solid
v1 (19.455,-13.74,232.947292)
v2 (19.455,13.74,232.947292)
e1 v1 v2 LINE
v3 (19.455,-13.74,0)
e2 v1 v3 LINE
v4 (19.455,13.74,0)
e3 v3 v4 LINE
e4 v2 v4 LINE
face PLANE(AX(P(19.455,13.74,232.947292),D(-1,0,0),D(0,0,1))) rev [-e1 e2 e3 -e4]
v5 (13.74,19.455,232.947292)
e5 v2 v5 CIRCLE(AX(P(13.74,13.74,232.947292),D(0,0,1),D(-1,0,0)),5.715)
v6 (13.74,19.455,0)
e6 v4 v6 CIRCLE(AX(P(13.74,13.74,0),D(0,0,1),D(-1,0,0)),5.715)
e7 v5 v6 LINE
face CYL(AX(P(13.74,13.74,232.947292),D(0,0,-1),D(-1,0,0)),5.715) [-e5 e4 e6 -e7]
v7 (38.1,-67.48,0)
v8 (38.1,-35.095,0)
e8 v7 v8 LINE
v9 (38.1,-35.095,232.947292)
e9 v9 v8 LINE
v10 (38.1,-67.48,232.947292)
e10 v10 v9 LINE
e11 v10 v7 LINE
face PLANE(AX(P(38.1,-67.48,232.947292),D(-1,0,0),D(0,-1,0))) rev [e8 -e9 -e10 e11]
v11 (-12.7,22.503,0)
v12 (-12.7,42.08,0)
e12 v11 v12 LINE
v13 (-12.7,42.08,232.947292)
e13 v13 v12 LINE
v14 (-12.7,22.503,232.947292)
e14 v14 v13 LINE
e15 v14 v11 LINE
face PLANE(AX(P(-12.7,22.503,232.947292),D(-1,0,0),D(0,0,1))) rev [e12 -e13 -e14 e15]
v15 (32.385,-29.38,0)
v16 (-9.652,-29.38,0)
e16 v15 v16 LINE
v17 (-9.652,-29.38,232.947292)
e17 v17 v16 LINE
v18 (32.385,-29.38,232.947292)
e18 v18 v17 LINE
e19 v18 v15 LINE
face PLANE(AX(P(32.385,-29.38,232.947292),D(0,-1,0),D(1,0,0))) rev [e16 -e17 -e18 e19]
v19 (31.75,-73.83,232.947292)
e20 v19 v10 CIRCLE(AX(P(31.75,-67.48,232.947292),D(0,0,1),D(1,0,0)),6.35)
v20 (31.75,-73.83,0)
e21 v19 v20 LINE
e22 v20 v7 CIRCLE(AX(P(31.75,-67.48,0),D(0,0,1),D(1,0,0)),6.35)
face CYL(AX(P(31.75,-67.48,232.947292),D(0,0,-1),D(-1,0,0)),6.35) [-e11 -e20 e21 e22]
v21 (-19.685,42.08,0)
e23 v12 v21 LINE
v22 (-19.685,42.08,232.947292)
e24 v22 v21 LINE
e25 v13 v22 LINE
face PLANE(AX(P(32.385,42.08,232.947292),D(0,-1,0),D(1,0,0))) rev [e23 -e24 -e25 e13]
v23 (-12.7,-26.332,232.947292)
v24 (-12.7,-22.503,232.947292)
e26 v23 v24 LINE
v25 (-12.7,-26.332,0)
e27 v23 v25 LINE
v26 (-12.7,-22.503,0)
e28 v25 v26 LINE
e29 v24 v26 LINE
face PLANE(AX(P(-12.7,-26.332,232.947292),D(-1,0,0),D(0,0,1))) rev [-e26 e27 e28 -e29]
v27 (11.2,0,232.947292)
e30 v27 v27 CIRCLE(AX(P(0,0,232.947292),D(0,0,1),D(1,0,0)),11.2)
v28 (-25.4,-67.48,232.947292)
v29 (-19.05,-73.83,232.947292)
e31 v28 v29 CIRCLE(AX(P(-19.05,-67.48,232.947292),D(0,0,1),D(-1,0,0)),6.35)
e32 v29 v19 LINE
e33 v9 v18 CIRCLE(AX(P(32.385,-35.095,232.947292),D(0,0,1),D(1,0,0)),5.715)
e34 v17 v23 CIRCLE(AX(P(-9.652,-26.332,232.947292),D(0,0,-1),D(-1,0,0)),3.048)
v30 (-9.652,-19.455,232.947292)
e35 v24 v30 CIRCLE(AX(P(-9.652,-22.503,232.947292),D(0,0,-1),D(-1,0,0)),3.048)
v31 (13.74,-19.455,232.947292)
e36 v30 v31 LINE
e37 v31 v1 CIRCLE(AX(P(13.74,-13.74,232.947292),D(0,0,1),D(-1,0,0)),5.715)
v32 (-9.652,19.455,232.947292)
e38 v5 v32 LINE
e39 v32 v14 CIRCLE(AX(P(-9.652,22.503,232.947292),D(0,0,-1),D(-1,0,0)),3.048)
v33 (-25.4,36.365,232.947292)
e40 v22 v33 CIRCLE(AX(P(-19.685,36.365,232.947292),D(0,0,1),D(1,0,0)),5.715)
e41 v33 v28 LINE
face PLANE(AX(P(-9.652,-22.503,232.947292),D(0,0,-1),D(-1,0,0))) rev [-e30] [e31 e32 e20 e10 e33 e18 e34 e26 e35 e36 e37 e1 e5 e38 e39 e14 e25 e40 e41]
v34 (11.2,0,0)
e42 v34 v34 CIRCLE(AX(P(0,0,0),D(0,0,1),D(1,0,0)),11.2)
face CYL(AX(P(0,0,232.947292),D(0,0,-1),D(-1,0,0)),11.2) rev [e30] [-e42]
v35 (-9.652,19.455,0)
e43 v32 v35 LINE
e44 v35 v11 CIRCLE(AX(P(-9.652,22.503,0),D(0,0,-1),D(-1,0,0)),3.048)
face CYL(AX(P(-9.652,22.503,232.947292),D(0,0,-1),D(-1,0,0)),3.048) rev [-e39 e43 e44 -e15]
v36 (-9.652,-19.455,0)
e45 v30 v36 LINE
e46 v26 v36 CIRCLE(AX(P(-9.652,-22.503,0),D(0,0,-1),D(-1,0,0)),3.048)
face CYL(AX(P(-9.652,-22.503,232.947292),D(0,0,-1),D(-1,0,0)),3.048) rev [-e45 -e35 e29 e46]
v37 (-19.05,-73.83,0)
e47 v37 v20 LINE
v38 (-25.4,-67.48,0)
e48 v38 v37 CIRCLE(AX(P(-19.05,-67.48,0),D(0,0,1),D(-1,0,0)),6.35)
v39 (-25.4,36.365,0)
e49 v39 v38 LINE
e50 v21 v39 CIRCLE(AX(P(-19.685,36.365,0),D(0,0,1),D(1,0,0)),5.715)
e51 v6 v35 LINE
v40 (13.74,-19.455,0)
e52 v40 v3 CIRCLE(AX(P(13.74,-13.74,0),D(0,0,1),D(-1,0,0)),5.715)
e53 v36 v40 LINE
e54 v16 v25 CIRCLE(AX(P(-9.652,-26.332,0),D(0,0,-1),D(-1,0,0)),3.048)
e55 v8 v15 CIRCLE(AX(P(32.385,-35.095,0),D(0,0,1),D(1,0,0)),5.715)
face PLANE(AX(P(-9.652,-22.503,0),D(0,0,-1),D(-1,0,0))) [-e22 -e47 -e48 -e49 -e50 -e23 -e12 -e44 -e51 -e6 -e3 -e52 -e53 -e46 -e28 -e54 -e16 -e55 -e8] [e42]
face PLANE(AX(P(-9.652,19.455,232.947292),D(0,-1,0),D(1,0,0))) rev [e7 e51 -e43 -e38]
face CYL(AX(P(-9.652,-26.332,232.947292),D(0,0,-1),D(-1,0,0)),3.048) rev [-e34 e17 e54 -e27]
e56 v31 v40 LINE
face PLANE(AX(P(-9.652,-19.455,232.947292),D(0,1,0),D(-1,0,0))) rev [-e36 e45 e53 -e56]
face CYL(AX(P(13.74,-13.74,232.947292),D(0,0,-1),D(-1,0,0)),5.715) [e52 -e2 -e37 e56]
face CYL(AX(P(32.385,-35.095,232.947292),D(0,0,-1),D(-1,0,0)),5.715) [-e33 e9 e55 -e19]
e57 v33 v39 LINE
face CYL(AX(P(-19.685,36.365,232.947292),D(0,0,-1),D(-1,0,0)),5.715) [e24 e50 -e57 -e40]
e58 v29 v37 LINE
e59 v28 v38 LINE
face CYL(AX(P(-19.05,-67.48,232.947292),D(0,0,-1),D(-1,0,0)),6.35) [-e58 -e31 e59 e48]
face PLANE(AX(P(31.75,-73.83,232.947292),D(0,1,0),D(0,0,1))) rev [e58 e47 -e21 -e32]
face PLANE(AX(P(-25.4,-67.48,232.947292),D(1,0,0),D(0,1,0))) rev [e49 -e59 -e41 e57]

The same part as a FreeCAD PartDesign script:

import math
import FreeCAD as App
import Part
import Sketcher

V = App.Vector
Q = App.Units.Quantity

doc = App.newDocument("Part")
body = doc.addObject("PartDesign::Body", "Body")

# Sketch on XY plane
sketch1 = doc.addObject("Sketcher::SketchObject", "Sketch")
body.addObject(sketch1)
sketch1.AttachmentSupport = (doc.XY_Plane, [""])
sketch1.MapMode = "FlatFace"
sketch1.addGeometry([
    Part.LineSegment(V(-25.4, 36.4, 0), V(-25.4, -67.5, 0)),  # 0
    Part.ArcOfCircle(Part.Circle(V(-19.1, -67.5, 0), V(0, 0, 1), 6.3), math.radians(180), math.radians(270)),  # 1
    Part.LineSegment(V(-19.1, -73.8, 0), V(31.8, -73.8, 0)),  # 2
    Part.ArcOfCircle(Part.Circle(V(31.8, -67.5, 0), V(0, 0, 1), 6.3), math.radians(-90), math.radians(0)),  # 3
    Part.LineSegment(V(38.1, -67.5, 0), V(38.1, -35.1, 0)),  # 4
    Part.ArcOfCircle(Part.Circle(V(32.4, -35.1, 0), V(0, 0, 1), 5.7), math.radians(0), math.radians(90)),  # 5
    Part.LineSegment(V(32.4, -29.4, 0), V(-9.7, -29.4, 0)),  # 6
    Part.ArcOfCircle(Part.Circle(V(-9.7, -26.3, 0), V(0, 0, 1), 3), math.radians(180), math.radians(270)),  # 7
    Part.LineSegment(V(-12.7, -26.3, 0), V(-12.7, -22.5, 0)),  # 8
    Part.ArcOfCircle(Part.Circle(V(-9.7, -22.5, 0), V(0, 0, 1), 3), math.radians(90), math.radians(180)),  # 9
    Part.LineSegment(V(-9.7, -19.5, 0), V(13.7, -19.5, 0)),  # 10
    Part.ArcOfCircle(Part.Circle(V(13.7, -13.7, 0), V(0, 0, 1), 5.7), math.radians(-90), math.radians(0)),  # 11
    Part.LineSegment(V(19.5, -13.7, 0), V(19.5, 13.7, 0)),  # 12
    Part.ArcOfCircle(Part.Circle(V(13.7, 13.7, 0), V(0, 0, 1), 5.7), math.radians(0), math.radians(90)),  # 13
    Part.LineSegment(V(13.7, 19.5, 0), V(-9.7, 19.5, 0)),  # 14
    Part.ArcOfCircle(Part.Circle(V(-9.7, 22.5, 0), V(0, 0, 1), 3), math.radians(180), math.radians(270)),  # 15
    Part.LineSegment(V(-12.7, 22.5, 0), V(-12.7, 26.3, 0)),  # 16
    Part.ArcOfCircle(Part.Circle(V(-9.7, 26.3, 0), V(0, 0, 1), 3), math.radians(90), math.radians(180)),  # 17
    Part.LineSegment(V(-9.7, 29.4, 0), V(32.4, 29.4, 0)),  # 18
    Part.ArcOfCircle(Part.Circle(V(32.4, 35.1, 0), V(0, 0, 1), 5.7), math.radians(-90), math.radians(0)),  # 19
    Part.LineSegment(V(38.1, 35.1, 0), V(38.1, 36.4, 0)),  # 20
    Part.ArcOfCircle(Part.Circle(V(32.4, 36.4, 0), V(0, 0, 1), 5.7), math.radians(0), math.radians(90)),  # 21
    Part.LineSegment(V(32.4, 42.1, 0), V(-19.7, 42.1, 0)),  # 22
    Part.ArcOfCircle(Part.Circle(V(-19.7, 36.4, 0), V(0, 0, 1), 5.7), math.radians(90), math.radians(180)),  # 23
    Part.Circle(V(0, 0, 0), V(0, 0, 1), 11.2),  # 24
], False)
sketch1.addConstraint([
    Sketcher.Constraint("Tangent", 0, 2, 1, 1),
    Sketcher.Constraint("Tangent", 1, 2, 2, 1),
    Sketcher.Constraint("Tangent", 2, 2, 3, 1),
    Sketcher.Constraint("Tangent", 3, 2, 4, 1),
    Sketcher.Constraint("Tangent", 4, 2, 5, 1),
    Sketcher.Constraint("Tangent", 5, 2, 6, 1),
    Sketcher.Constraint("Tangent", 6, 2, 7, 2),
    Sketcher.Constraint("Tangent", 7, 1, 8, 1),
    Sketcher.Constraint("Tangent", 8, 2, 9, 2),
    Sketcher.Constraint("Tangent", 9, 1, 10, 1),
    Sketcher.Constraint("Tangent", 10, 2, 11, 1),
    Sketcher.Constraint("Tangent", 11, 2, 12, 1),
    Sketcher.Constraint("Tangent", 12, 2, 13, 1),
    Sketcher.Constraint("Tangent", 13, 2, 14, 1),
    Sketcher.Constraint("Tangent", 14, 2, 15, 2),
    Sketcher.Constraint("Tangent", 15, 1, 16, 1),
    Sketcher.Constraint("Tangent", 16, 2, 17, 2),
    Sketcher.Constraint("Tangent", 17, 1, 18, 1),
    Sketcher.Constraint("Tangent", 18, 2, 19, 1),
    Sketcher.Constraint("Tangent", 19, 2, 20, 1),
    Sketcher.Constraint("Tangent", 20, 2, 21, 1),
    Sketcher.Constraint("Tangent", 21, 2, 22, 1),
    Sketcher.Constraint("Tangent", 22, 2, 23, 1),
    Sketcher.Constraint("Tangent", 23, 2, 0, 1),
    Sketcher.Constraint("Vertical", 0),
    Sketcher.Constraint("Horizontal", 2),
    Sketcher.Constraint("Vertical", 4),
    Sketcher.Constraint("Horizontal", 6),
    Sketcher.Constraint("Vertical", 8),
    Sketcher.Constraint("Horizontal", 10),
    Sketcher.Constraint("Vertical", 12),
    Sketcher.Constraint("Horizontal", 14),
    Sketcher.Constraint("Vertical", 16),
    Sketcher.Constraint("Horizontal", 18),
    Sketcher.Constraint("Vertical", 20),
    Sketcher.Constraint("Horizontal", 22),
    Sketcher.Constraint("Coincident", 24, 3, -1, 1),
    Sketcher.Constraint("Equal", 1, 3),
    Sketcher.Constraint("Equal", 7, 9),
    Sketcher.Constraint("Equal", 5, 11),
    Sketcher.Constraint("Equal", 11, 13),
    Sketcher.Constraint("Equal", 9, 15),
    Sketcher.Constraint("Equal", 15, 17),
    Sketcher.Constraint("Equal", 13, 19),
    Sketcher.Constraint("Equal", 19, 21),
    Sketcher.Constraint("Equal", 21, 23),
    Sketcher.Constraint("Symmetric", 9, 3, 15, 3, -1),
    Sketcher.Constraint("Symmetric", 5, 3, 19, 3, -1),
    Sketcher.Constraint("DistanceX", 2, 1, 2, 2, Q("2 in")),
    Sketcher.Constraint("Radius", 1, Q("0.25 in")),
    Sketcher.Constraint("Radius", 7, Q("0.12 in")),
    Sketcher.Constraint("DistanceX", 0, 2, -1, 1, Q("1 in")),
    Sketcher.Constraint("Radius", 5, Q("0.225 in")),
    Sketcher.Constraint("DistanceY", 20, 1, 20, 2, Q("0.05 in")),
    Sketcher.Constraint("DistanceX", 7, 1, -1, 1, Q("0.5 in")),
    Sketcher.Constraint("DistanceY", 3, 3, 5, 2, Q("1.5 in")),
    Sketcher.Constraint("Diameter", 24, Q("22.4 mm")),
    Sketcher.Constraint("DistanceX", 10, 1, 10, 2, Q("23.392 mm")),
    Sketcher.Constraint("DistanceY", 0, 2, 0, 1, Q("103.845 mm")),
    Sketcher.Constraint("DistanceY", 8, 1, 8, 2, Q("3.829 mm")),
])
pad1 = doc.addObject("PartDesign::Pad", "Pad")
body.addObject(pad1)
pad1.Profile = sketch1
pad1.Length = 232.947292

# Sketch on XY plane
sketch2 = doc.addObject("Sketcher::SketchObject", "Sketch001")
body.addObject(sketch2)
sketch2.AttachmentSupport = (doc.XY_Plane, [""])
sketch2.MapMode = "FlatFace"
sketch2.AttachmentOffset = App.Placement(V(0, 0, 232.947292), App.Rotation())
sketch2.addGeometry([
    Part.LineSegment(V(19, -14, 0), V(38, -14, 0)),  # 0
    Part.LineSegment(V(38, -14, 0), V(38, 42, 0)),  # 1
    Part.LineSegment(V(38, 42, 0), V(-13, 42, 0)),  # 2
    Part.LineSegment(V(-13, 42, 0), V(-13, 23, 0)),  # 3
    Part.LineSegment(V(-13, 23, 0), V(19, 23, 0)),  # 4
    Part.LineSegment(V(19, 23, 0), V(19, -14, 0)),  # 5
], False)
sketch2.addConstraint([
    Sketcher.Constraint("Coincident", 0, 2, 1, 1),
    Sketcher.Constraint("Coincident", 1, 2, 2, 1),
    Sketcher.Constraint("Coincident", 2, 2, 3, 1),
    Sketcher.Constraint("Coincident", 3, 2, 4, 1),
    Sketcher.Constraint("Coincident", 4, 2, 5, 1),
    Sketcher.Constraint("Coincident", 5, 2, 0, 1),
    Sketcher.Constraint("Horizontal", 0),
    Sketcher.Constraint("Vertical", 1),
    Sketcher.Constraint("Horizontal", 2),
    Sketcher.Constraint("Vertical", 3),
    Sketcher.Constraint("Horizontal", 4),
    Sketcher.Constraint("Vertical", 5),
    Sketcher.Constraint("DistanceX", 2, 2, 2, 1, Q("2 in")),
    Sketcher.Constraint("DistanceX", -1, 1, 0, 2, Q("1.5 in")),
    Sketcher.Constraint("DistanceX", 0, 1, 0, 2, Q("18.645 mm")),
    Sketcher.Constraint("DistanceY", 1, 1, 1, 2, Q("55.82 mm")),
    Sketcher.Constraint("DistanceY", 3, 2, 3, 1, Q("19.577 mm")),
    Sketcher.Constraint("DistanceY", 0, 2, -1, 1, Q("13.74 mm")),
])
pocket1 = doc.addObject("PartDesign::Pocket", "Pocket")
body.addObject(pocket1)
pocket1.Profile = sketch2
pocket1.Length = Q("9.33 in")

doc.recompute()
